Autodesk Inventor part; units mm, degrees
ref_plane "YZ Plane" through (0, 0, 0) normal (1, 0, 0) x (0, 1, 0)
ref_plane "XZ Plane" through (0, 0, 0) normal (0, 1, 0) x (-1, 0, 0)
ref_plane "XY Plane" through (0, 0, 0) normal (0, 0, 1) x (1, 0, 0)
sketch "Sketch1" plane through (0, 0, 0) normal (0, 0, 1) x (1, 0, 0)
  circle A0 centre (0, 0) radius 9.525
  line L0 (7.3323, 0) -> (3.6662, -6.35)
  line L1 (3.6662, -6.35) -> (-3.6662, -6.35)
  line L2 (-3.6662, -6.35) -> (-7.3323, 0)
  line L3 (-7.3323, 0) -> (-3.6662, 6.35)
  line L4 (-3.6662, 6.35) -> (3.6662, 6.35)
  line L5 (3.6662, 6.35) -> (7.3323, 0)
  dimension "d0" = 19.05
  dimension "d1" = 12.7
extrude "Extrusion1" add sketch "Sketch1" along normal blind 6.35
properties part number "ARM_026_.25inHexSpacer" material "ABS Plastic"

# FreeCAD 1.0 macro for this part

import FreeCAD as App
import Part
import Sketcher
Q = App.Units.Quantity


def add_polygon(sketch, points):
    """Adds a closed chain of lines whose ends are joined by coincident constraints."""
    first, n = sketch.GeometryCount, len(points)
    for a, b in zip(points, points[1:] + points[:1]):
        sketch.addGeometry(Part.LineSegment(App.Vector(*a, 0), App.Vector(*b, 0)), False)
    for i in range(n):
        sketch.addConstraint(Sketcher.Constraint("Coincident", first + i, 2, first + (i + 1) % n, 1))

doc = App.newDocument("Part")
body = doc.addObject("PartDesign::Body", "Body")

# Sketch on XY plane
sketch1 = body.newObject("Sketcher::SketchObject", "Sketch")
sketch1.AttachmentSupport = (doc.getObject("XY_Plane"), [""])
sketch1.MapMode = "FlatFace"
sketch1.addGeometry(Part.Circle(App.Vector(0, 0, 0), App.Vector(0, 0, 1), 10), False)  # 0
add_polygon(sketch1, [(4, 6), (7, 0), (4, -6), (-4, -6), (-7, 0), (-4, 6)])  # lines 1-6
sketch1.addConstraint(Sketcher.Constraint("Horizontal", 3))
sketch1.addConstraint(Sketcher.Constraint("Horizontal", 6))
sketch1.addConstraint(Sketcher.Constraint("Coincident", 0, 3, -1, 1))
sketch1.addConstraint(Sketcher.Constraint("Symmetric", 1, 2, 4, 2, -1, 1))
sketch1.addConstraint(Sketcher.Constraint("Symmetric", 2, 2, 5, 2, -1, 1))
sketch1.addConstraint(Sketcher.Constraint("PointOnObject", 1, 2, -1))
sketch1.addConstraint(Sketcher.Constraint("Parallel", 1, 4))
sketch1.addConstraint(Sketcher.Constraint("Vertical", 3, 2, 5, 2))
sketch1.addConstraint(Sketcher.Constraint("Diameter", 0, Q("0.75 in")))
sketch1.addConstraint(Sketcher.Constraint("DistanceY", 3, 2, 5, 2, Q("0.5 in")))
sketch1.addConstraint(Sketcher.Constraint("Angle", 1, Q("-60.0005 deg")))
sketch1.addConstraint(Sketcher.Constraint("DistanceX", 3, 2, 1, 2, Q("0.433 in")))
pad1 = body.newObject("PartDesign::Pad", "Pad")
pad1.Profile = sketch1
pad1.Length = Q("0.25 in")

doc.recompute()
